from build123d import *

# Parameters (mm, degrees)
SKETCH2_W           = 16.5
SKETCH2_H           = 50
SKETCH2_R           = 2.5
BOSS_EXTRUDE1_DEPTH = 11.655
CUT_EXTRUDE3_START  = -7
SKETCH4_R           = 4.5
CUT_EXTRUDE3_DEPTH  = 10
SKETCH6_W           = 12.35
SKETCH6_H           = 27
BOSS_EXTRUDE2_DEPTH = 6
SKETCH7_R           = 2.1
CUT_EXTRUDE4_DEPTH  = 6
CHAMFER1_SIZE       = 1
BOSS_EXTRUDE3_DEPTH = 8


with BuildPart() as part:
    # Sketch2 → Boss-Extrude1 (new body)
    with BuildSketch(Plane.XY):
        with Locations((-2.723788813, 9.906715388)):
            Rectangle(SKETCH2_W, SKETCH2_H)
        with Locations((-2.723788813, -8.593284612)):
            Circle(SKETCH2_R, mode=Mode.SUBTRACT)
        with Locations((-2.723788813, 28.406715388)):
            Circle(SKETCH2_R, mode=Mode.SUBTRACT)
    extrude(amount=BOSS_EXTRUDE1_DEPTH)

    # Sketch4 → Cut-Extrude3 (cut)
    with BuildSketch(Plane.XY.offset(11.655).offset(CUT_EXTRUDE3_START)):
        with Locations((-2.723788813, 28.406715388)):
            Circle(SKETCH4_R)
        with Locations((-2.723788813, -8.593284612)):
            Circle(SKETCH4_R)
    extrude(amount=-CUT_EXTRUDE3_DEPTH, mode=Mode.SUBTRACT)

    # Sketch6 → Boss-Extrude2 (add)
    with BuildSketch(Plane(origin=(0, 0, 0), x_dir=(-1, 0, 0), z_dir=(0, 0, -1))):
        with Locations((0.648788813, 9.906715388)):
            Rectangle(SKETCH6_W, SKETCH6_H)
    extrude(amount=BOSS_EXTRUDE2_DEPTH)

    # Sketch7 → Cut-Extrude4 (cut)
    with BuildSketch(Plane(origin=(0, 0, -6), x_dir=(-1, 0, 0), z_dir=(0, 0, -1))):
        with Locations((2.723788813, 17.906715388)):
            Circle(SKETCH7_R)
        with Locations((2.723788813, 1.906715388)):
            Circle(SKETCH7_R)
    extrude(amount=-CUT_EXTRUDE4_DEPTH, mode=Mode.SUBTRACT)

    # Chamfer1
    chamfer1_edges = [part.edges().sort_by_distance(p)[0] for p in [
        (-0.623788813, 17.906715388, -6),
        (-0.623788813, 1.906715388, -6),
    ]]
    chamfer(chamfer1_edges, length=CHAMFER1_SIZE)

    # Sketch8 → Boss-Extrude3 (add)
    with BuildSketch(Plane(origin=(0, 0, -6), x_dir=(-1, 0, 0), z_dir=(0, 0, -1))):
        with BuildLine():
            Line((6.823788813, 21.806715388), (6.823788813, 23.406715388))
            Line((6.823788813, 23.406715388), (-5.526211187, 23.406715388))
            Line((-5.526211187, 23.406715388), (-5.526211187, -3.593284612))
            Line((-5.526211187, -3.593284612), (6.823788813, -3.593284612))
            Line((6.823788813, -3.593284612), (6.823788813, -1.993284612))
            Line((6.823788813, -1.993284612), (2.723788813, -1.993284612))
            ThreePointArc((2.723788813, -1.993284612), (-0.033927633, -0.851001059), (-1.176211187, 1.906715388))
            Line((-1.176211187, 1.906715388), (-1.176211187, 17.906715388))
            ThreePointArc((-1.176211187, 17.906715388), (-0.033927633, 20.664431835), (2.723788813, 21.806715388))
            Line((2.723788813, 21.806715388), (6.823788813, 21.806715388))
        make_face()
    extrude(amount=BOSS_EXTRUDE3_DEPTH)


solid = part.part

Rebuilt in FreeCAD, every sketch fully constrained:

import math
import FreeCAD as App
import Part
import Sketcher


def edges_at(feature, points):
    """Names of the edges that pass closest to the given points."""
    edges = feature.Shape.Edges
    near = lambda p: min(range(len(edges)), key=lambda i: edges[i].distToShape(Part.Vertex(*p))[0])
    return sorted({f"Edge{near(p) + 1}" for p in points})

doc = App.newDocument("Part")
body = doc.addObject("PartDesign::Body", "Body")

# Sketch on XY plane
sketch1 = body.newObject("Sketcher::SketchObject", "Sketch")
sketch1.AttachmentSupport = (doc.getObject("XY_Plane"), [""])
sketch1.MapMode = "FlatFace"
sketch1.addGeometry(Part.LineSegment(App.Vector(-11, 34.9, 0), App.Vector(-11, -15.1, 0)), False)
sketch1.addGeometry(Part.LineSegment(App.Vector(-11, -15.1, 0), App.Vector(5.5, -15.1, 0)), False)
sketch1.addGeometry(Part.LineSegment(App.Vector(5.5, -15.1, 0), App.Vector(5.5, 34.9, 0)), False)
sketch1.addGeometry(Part.LineSegment(App.Vector(5.5, 34.9, 0), App.Vector(-11, 34.9, 0)), False)
sketch1.addGeometry(Part.Circle(App.Vector(-2.7, -8.6, 0), App.Vector(0, 0, 1), 2.5), False)
sketch1.addGeometry(Part.Circle(App.Vector(-2.7, 28.4, 0), App.Vector(0, 0, 1), 2.5), False)
sketch1.addConstraint(Sketcher.Constraint("Coincident", 0, 2, 1, 1))
sketch1.addConstraint(Sketcher.Constraint("Coincident", 1, 2, 2, 1))
sketch1.addConstraint(Sketcher.Constraint("Coincident", 2, 2, 3, 1))
sketch1.addConstraint(Sketcher.Constraint("Coincident", 3, 2, 0, 1))
sketch1.addConstraint(Sketcher.Constraint("Vertical", 0))
sketch1.addConstraint(Sketcher.Constraint("Horizontal", 1))
sketch1.addConstraint(Sketcher.Constraint("Vertical", 2))
sketch1.addConstraint(Sketcher.Constraint("Horizontal", 3))
sketch1.addConstraint(Sketcher.Constraint("Equal", 4, 5))
sketch1.addConstraint(Sketcher.Constraint("Vertical", 4, 3, 5, 3))
sketch1.addConstraint(Sketcher.Constraint("Diameter", 4, 5.0))
sketch1.addConstraint(Sketcher.Constraint("DistanceY", 0, 2, 0, 1, 50.0))
sketch1.addConstraint(Sketcher.Constraint("DistanceX", 1, 1, 1, 2, 16.5))
sketch1.addConstraint(Sketcher.Constraint("DistanceY", 4, 3, 5, 3, 37.0))
sketch1.addConstraint(Sketcher.Constraint("DistanceY", 0, 2, 4, 3, 6.5))
sketch1.addConstraint(Sketcher.Constraint("DistanceX", 0, 2, 4, 3, 8.25))
sketch1.addConstraint(Sketcher.Constraint("DistanceX", 4, 3, -1, 1, 2.723789))
sketch1.addConstraint(Sketcher.Constraint("DistanceY", 4, 3, -1, 1, 8.593285))
pad1 = body.newObject("PartDesign::Pad", "Pad")
pad1.Profile = sketch1
pad1.Length = 11.655

# Sketch on XY plane
sketch2 = body.newObject("Sketcher::SketchObject", "Sketch001")
sketch2.AttachmentSupport = (doc.getObject("XY_Plane"), [""])
sketch2.MapMode = "FlatFace"
sketch2.AttachmentOffset = App.Placement(App.Vector(0, 0, 4.655), App.Rotation())
sketch2.addGeometry(Part.Circle(App.Vector(-2.7, 28.4, 0), App.Vector(0, 0, 1), 4.5), False)
sketch2.addGeometry(Part.Circle(App.Vector(-2.7, -8.6, 0), App.Vector(0, 0, 1), 4.5), False)
sketch2.addConstraint(Sketcher.Constraint("Equal", 0, 1))
sketch2.addConstraint(Sketcher.Constraint("Vertical", 0, 3, 1, 3))
sketch2.addConstraint(Sketcher.Constraint("Diameter", 0, 9.0))
sketch2.addConstraint(Sketcher.Constraint("DistanceY", 1, 3, 0, 3, 37.0))
sketch2.addConstraint(Sketcher.Constraint("DistanceX", 0, 3, -1, 1, 2.723789))
sketch2.addConstraint(Sketcher.Constraint("DistanceY", -1, 1, 0, 3, 28.406715))
pocket1 = body.newObject("PartDesign::Pocket", "Pocket")
pocket1.Profile = sketch2
pocket1.Length = 10

# Sketch on XY plane
sketch3 = body.newObject("Sketcher::SketchObject", "Sketch002")
sketch3.AttachmentSupport = (doc.getObject("XY_Plane"), [""])
sketch3.MapMode = "FlatFace"
sketch3.addGeometry(Part.LineSegment(App.Vector(6, 23, 0), App.Vector(6, -4, 0)), False)
sketch3.addGeometry(Part.LineSegment(App.Vector(6, -4, 0), App.Vector(-7, -4, 0)), False)
sketch3.addGeometry(Part.LineSegment(App.Vector(-7, -4, 0), App.Vector(-7, 23, 0)), False)
sketch3.addGeometry(Part.LineSegment(App.Vector(-7, 23, 0), App.Vector(6, 23, 0)), False)
sketch3.addConstraint(Sketcher.Constraint("Coincident", 0, 2, 1, 1))
sketch3.addConstraint(Sketcher.Constraint("Coincident", 1, 2, 2, 1))
sketch3.addConstraint(Sketcher.Constraint("Coincident", 2, 2, 3, 1))
sketch3.addConstraint(Sketcher.Constraint("Coincident", 3, 2, 0, 1))
sketch3.addConstraint(Sketcher.Constraint("Vertical", 0))
sketch3.addConstraint(Sketcher.Constraint("Horizontal", 1))
sketch3.addConstraint(Sketcher.Constraint("Vertical", 2))
sketch3.addConstraint(Sketcher.Constraint("Horizontal", 3))
sketch3.addConstraint(Sketcher.Constraint("DistanceY", 0, 2, 0, 1, 27.0))
sketch3.addConstraint(Sketcher.Constraint("DistanceX", 1, 2, 1, 1, 12.35))
sketch3.addConstraint(Sketcher.Constraint("DistanceX", -1, 1, 0, 2, 5.526211))
sketch3.addConstraint(Sketcher.Constraint("DistanceY", 0, 2, -1, 1, 3.593285))
pad2 = body.newObject("PartDesign::Pad", "Pad001")
pad2.Profile = sketch3
pad2.Length = 6
pad2.Reversed = True

# Sketch on XY plane
sketch4 = body.newObject("Sketcher::SketchObject", "Sketch003")
sketch4.AttachmentSupport = (doc.getObject("XY_Plane"), [""])
sketch4.MapMode = "FlatFace"
sketch4.AttachmentOffset = App.Placement(App.Vector(0, 0, -6), App.Rotation())
sketch4.addGeometry(Part.Circle(App.Vector(-2.7, 17.9, 0), App.Vector(0, 0, 1), 2.1), False)
sketch4.addGeometry(Part.Circle(App.Vector(-2.7, 1.9, 0), App.Vector(0, 0, 1), 2.1), False)
sketch4.addConstraint(Sketcher.Constraint("Equal", 0, 1))
sketch4.addConstraint(Sketcher.Constraint("Vertical", 0, 3, 1, 3))
sketch4.addConstraint(Sketcher.Constraint("Diameter", 0, 4.2))
sketch4.addConstraint(Sketcher.Constraint("DistanceY", 1, 3, 0, 3, 16.0))
sketch4.addConstraint(Sketcher.Constraint("DistanceX", 0, 3, -1, 1, 2.723789))
sketch4.addConstraint(Sketcher.Constraint("DistanceY", -1, 1, 0, 3, 17.906715))
pocket2 = body.newObject("PartDesign::Pocket", "Pocket001")
pocket2.Profile = sketch4
pocket2.Length = 6
pocket2.Reversed = True
doc.recompute()

chamfer = body.newObject("PartDesign::Chamfer", "Chamfer")
chamfer.Base = (pocket2, edges_at(pocket2, [(-0.624, 17.907, -6), (-0.624, 1.907, -6)]))
chamfer.Size = 1

# Sketch on XY plane
sketch5 = body.newObject("Sketcher::SketchObject", "Sketch004")
sketch5.AttachmentSupport = (doc.getObject("XY_Plane"), [""])
sketch5.MapMode = "FlatFace"
sketch5.AttachmentOffset = App.Placement(App.Vector(0, 0, -6), App.Rotation())
sketch5.addGeometry(Part.LineSegment(App.Vector(-6.8, 21.8, 0), App.Vector(-6.8, 23.4, 0)), False)
sketch5.addGeometry(Part.LineSegment(App.Vector(-6.8, 23.4, 0), App.Vector(5.5, 23.4, 0)), False)
sketch5.addGeometry(Part.LineSegment(App.Vector(5.5, 23.4, 0), App.Vector(5.5, -3.6, 0)), False)
sketch5.addGeometry(Part.LineSegment(App.Vector(5.5, -3.6, 0), App.Vector(-6.8, -3.6, 0)), False)
sketch5.addGeometry(Part.LineSegment(App.Vector(-6.8, -3.6, 0), App.Vector(-6.8, -2, 0)), False)
sketch5.addGeometry(Part.LineSegment(App.Vector(-6.8, -2, 0), App.Vector(-2.7, -2, 0)), False)
sketch5.addGeometry(Part.ArcOfCircle(Part.Circle(App.Vector(-2.7, 1.9, 0), App.Vector(0, 0, 1), 3.9), math.radians(-90), math.radians(0)), False)
sketch5.addGeometry(Part.LineSegment(App.Vector(1.2, 1.9, 0), App.Vector(1.2, 17.9, 0)), False)
sketch5.addGeometry(Part.ArcOfCircle(Part.Circle(App.Vector(-2.7, 17.9, 0), App.Vector(0, 0, 1), 3.9), math.radians(0), math.radians(90)), False)
sketch5.addGeometry(Part.LineSegment(App.Vector(-2.7, 21.8, 0), App.Vector(-6.8, 21.8, 0)), False)
sketch5.addConstraint(Sketcher.Constraint("Coincident", 0, 2, 1, 1))
sketch5.addConstraint(Sketcher.Constraint("Coincident", 1, 2, 2, 1))
sketch5.addConstraint(Sketcher.Constraint("Coincident", 2, 2, 3, 1))
sketch5.addConstraint(Sketcher.Constraint("Coincident", 3, 2, 4, 1))
sketch5.addConstraint(Sketcher.Constraint("Coincident", 4, 2, 5, 1))
sketch5.addConstraint(Sketcher.Constraint("Tangent", 5, 2, 6, 1))
sketch5.addConstraint(Sketcher.Constraint("Tangent", 6, 2, 7, 1))
sketch5.addConstraint(Sketcher.Constraint("Tangent", 7, 2, 8, 1))
sketch5.addConstraint(Sketcher.Constraint("Tangent", 8, 2, 9, 1))
sketch5.addConstraint(Sketcher.Constraint("Coincident", 9, 2, 0, 1))
sketch5.addConstraint(Sketcher.Constraint("Vertical", 0))
sketch5.addConstraint(Sketcher.Constraint("Horizontal", 1))
sketch5.addConstraint(Sketcher.Constraint("Vertical", 2))
sketch5.addConstraint(Sketcher.Constraint("Horizontal", 3))
sketch5.addConstraint(Sketcher.Constraint("Vertical", 4))
sketch5.addConstraint(Sketcher.Constraint("Horizontal", 5))
sketch5.addConstraint(Sketcher.Constraint("Vertical", 7))
sketch5.addConstraint(Sketcher.Constraint("Horizontal", 9))
sketch5.addConstraint(Sketcher.Constraint("Equal", 6, 8))
sketch5.addConstraint(Sketcher.Constraint("Vertical", 0, 2, 3, 2))
sketch5.addConstraint(Sketcher.Constraint("Equal", 0, 4))
sketch5.addConstraint(Sketcher.Constraint("Radius", 6, 3.9))
sketch5.addConstraint(Sketcher.Constraint("DistanceY", 2, 2, 2, 1, 27.0))
sketch5.addConstraint(Sketcher.Constraint("DistanceY", 7, 1, 7, 2, 16.0))
sketch5.addConstraint(Sketcher.Constraint("DistanceX", 5, 1, 5, 2, 4.1))
sketch5.addConstraint(Sketcher.Constraint("DistanceX", 1, 1, 1, 2, 12.35))
sketch5.addConstraint(Sketcher.Constraint("DistanceX", 6, 3, -1, 1, 2.723789))
sketch5.addConstraint(Sketcher.Constraint("DistanceY", -1, 1, 6, 3, 1.906715))
pad3 = body.newObject("PartDesign::Pad", "Pad002")
pad3.Profile = sketch5
pad3.Length = 8
pad3.Reversed = True

doc.recompute()
